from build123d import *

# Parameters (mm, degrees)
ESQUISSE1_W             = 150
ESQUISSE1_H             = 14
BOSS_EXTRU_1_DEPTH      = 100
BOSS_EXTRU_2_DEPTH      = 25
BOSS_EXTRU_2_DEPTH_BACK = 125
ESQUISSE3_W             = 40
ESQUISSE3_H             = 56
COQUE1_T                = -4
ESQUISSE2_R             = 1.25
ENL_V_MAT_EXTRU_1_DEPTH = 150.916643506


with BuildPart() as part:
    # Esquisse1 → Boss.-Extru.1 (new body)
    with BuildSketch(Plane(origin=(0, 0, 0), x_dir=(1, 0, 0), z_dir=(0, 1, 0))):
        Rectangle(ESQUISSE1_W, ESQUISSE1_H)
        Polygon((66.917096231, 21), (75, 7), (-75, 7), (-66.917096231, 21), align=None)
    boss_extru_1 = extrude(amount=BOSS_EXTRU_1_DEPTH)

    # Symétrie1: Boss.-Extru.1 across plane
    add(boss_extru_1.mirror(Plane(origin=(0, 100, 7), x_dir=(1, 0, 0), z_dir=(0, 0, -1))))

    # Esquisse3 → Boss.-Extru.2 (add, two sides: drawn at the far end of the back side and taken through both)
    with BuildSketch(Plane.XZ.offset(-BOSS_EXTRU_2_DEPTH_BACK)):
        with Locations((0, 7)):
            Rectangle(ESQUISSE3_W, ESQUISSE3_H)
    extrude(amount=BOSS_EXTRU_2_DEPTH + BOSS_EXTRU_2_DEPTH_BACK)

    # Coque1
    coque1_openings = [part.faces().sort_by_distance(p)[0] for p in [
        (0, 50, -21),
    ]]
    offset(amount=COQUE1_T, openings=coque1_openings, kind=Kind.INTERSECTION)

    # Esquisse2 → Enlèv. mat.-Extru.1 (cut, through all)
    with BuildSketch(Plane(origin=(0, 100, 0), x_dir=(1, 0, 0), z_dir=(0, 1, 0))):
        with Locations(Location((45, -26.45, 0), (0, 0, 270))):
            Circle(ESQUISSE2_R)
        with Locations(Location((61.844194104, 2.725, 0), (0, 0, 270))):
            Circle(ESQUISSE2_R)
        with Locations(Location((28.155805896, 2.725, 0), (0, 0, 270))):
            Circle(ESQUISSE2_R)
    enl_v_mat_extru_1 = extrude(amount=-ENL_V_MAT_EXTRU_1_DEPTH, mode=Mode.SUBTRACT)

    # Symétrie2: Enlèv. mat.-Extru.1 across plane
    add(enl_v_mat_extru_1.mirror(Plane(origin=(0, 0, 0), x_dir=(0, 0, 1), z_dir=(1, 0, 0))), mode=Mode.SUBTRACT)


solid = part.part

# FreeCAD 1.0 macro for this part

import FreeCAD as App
import Part
import Sketcher

V = App.Vector
Q = App.Units.Quantity


def faces_at(feature, points):
    """Names of the faces that lie closest to the given points."""
    faces = feature.Shape.Faces
    near = lambda p: min(range(len(faces)), key=lambda i: faces[i].distToShape(Part.Vertex(*p))[0])
    return sorted({f"Face{near(p) + 1}" for p in points})

doc = App.newDocument("Part")
body = doc.addObject("PartDesign::Body", "Body")

sketch1 = body.newObject("Sketcher::SketchObject", "Sketch")
sketch1.AttachmentSupport = (doc.getObject("XZ_Plane"), [""])
sketch1.MapMode = "FlatFace"
sketch1.addGeometry(Part.LineSegment(V(-75, -7, 0), V(-75, 7, 0)), False)
sketch1.addGeometry(Part.LineSegment(V(-75, 7, 0), V(75, 7, 0)), False)
sketch1.addGeometry(Part.LineSegment(V(75, 7, 0), V(75, -7, 0)), False)
sketch1.addGeometry(Part.LineSegment(V(75, -7, 0), V(67, -21, 0)), False)
sketch1.addGeometry(Part.LineSegment(V(67, -21, 0), V(-67, -21, 0)), False)
sketch1.addGeometry(Part.LineSegment(V(-67, -21, 0), V(-75, -7, 0)), False)
sketch1.addConstraint(Sketcher.Constraint("Coincident", 0, 2, 1, 1))
sketch1.addConstraint(Sketcher.Constraint("Coincident", 1, 2, 2, 1))
sketch1.addConstraint(Sketcher.Constraint("Coincident", 2, 2, 3, 1))
sketch1.addConstraint(Sketcher.Constraint("Coincident", 3, 2, 4, 1))
sketch1.addConstraint(Sketcher.Constraint("Coincident", 4, 2, 5, 1))
sketch1.addConstraint(Sketcher.Constraint("Coincident", 5, 2, 0, 1))
sketch1.addConstraint(Sketcher.Constraint("Vertical", 0))
sketch1.addConstraint(Sketcher.Constraint("Horizontal", 1))
sketch1.addConstraint(Sketcher.Constraint("Vertical", 2))
sketch1.addConstraint(Sketcher.Constraint("Horizontal", 4))
sketch1.addConstraint(Sketcher.Constraint("Symmetric", 0, 2, 2, 2, -1, 1))
sketch1.addConstraint(Sketcher.Constraint("Horizontal", 2, 2, 5, 2))
sketch1.addConstraint(Sketcher.Constraint("Equal", 3, 5))
sketch1.addConstraint(Sketcher.Constraint("DistanceX", 1, 1, 1, 2, Q("150 mm")))
sketch1.addConstraint(Sketcher.Constraint("DistanceY", 0, 1, 0, 2, Q("14 mm")))
sketch1.addConstraint(Sketcher.Constraint("Angle", 3, Q("-120 deg")))
sketch1.addConstraint(Sketcher.Constraint("DistanceY", 3, 2, -1, 1, Q("21 mm")))
pad1 = body.newObject("PartDesign::Pad", "Pad")
pad1.Profile = sketch1
pad1.Length = 100
pad1.Reversed = True
doc.recompute()

datumplane = body.newObject("PartDesign::Plane", "DatumPlane")
datumplane.AttachmentSupport = (doc.getObject("XY_Plane"), [""])
datumplane.MapMode = "FlatFace"
datumplane.AttachmentOffset = App.Placement(V(0, 0, 7), App.Rotation())
mirrored = body.newObject("PartDesign::Mirrored", "Mirrored")
mirrored.Originals = [pad1]
mirrored.MirrorPlane = (datumplane, [""])
body.Tip = mirrored

sketch2 = body.newObject("Sketcher::SketchObject", "Sketch001")
sketch2.AttachmentSupport = (doc.getObject("XZ_Plane"), [""])
sketch2.MapMode = "FlatFace"
sketch2.addGeometry(Part.LineSegment(V(-20, 35, 0), V(-20, -21, 0)), False)
sketch2.addGeometry(Part.LineSegment(V(-20, -21, 0), V(20, -21, 0)), False)
sketch2.addGeometry(Part.LineSegment(V(20, -21, 0), V(20, 35, 0)), False)
sketch2.addGeometry(Part.LineSegment(V(20, 35, 0), V(-20, 35, 0)), False)
sketch2.addConstraint(Sketcher.Constraint("Coincident", 0, 2, 1, 1))
sketch2.addConstraint(Sketcher.Constraint("Coincident", 1, 2, 2, 1))
sketch2.addConstraint(Sketcher.Constraint("Coincident", 2, 2, 3, 1))
sketch2.addConstraint(Sketcher.Constraint("Coincident", 3, 2, 0, 1))
sketch2.addConstraint(Sketcher.Constraint("Vertical", 0))
sketch2.addConstraint(Sketcher.Constraint("Horizontal", 1))
sketch2.addConstraint(Sketcher.Constraint("Vertical", 2))
sketch2.addConstraint(Sketcher.Constraint("Horizontal", 3))
sketch2.addConstraint(Sketcher.Constraint("DistanceX", 1, 1, 1, 2, Q("40 mm")))
sketch2.addConstraint(Sketcher.Constraint("DistanceY", 0, 2, 0, 1, Q("56 mm")))
sketch2.addConstraint(Sketcher.Constraint("DistanceX", 0, 2, -1, 1, Q("20 mm")))
sketch2.addConstraint(Sketcher.Constraint("DistanceY", 0, 2, -1, 1, Q("21 mm")))
pad2 = body.newObject("PartDesign::Pad", "Pad001")
pad2.Profile = sketch2
pad2.Type = "TwoLengths"
pad2.Length = 25
pad2.Length2 = 125
doc.recompute()

thickness = body.newObject("PartDesign::Thickness", "Thickness")
thickness.Base = (pad2, faces_at(pad2, [(0, 50, -21)]))
thickness.Value = 4
thickness.Reversed = True
thickness.Join = "Intersection"

sketch3 = body.newObject("Sketcher::SketchObject", "Sketch002")
sketch3.AttachmentSupport = (doc.getObject("XZ_Plane"), [""])
sketch3.MapMode = "FlatFace"
sketch3.AttachmentOffset = App.Placement(V(0, 0, -100), App.Rotation())
sketch3.addGeometry(Part.Circle(V(45, 26.4, 0), V(0, 0, 1), 1.2), False)
sketch3.addGeometry(Part.Circle(V(61.8, -2.7, 0), V(0, 0, 1), 1.2), False)
sketch3.addGeometry(Part.Circle(V(28.2, -2.7, 0), V(0, 0, 1), 1.2), False)
sketch3.addConstraint(Sketcher.Constraint("Equal", 0, 1))
sketch3.addConstraint(Sketcher.Constraint("Equal", 1, 2))
sketch3.addConstraint(Sketcher.Constraint("Horizontal", 1, 3, 2, 3))
sketch3.addConstraint(Sketcher.Constraint("Diameter", 0, Q("2.5 mm")))
sketch3.addConstraint(Sketcher.Constraint("DistanceX", -1, 1, 0, 3, Q("45 mm")))
sketch3.addConstraint(Sketcher.Constraint("DistanceY", -1, 1, 0, 3, Q("26.45 mm")))
sketch3.addConstraint(Sketcher.Constraint("DistanceY", 1, 3, -1, 1, Q("2.725 mm")))
sketch3.addConstraint(Sketcher.Constraint("DistanceX", 2, 3, 1, 3, Q("33.688388 mm")))
sketch3.addConstraint(Sketcher.Constraint("DistanceX", -1, 1, 1, 3, Q("61.844194 mm")))
pocket1 = body.newObject("PartDesign::Pocket", "Pocket")
pocket1.Profile = sketch3
pocket1.Type = "ThroughAll"
pocket1.Reversed = True
doc.recompute()

mirrored2 = body.newObject("PartDesign::Mirrored", "Mirrored001")
mirrored2.Originals = [pocket1]
mirrored2.MirrorPlane = (doc.getObject("YZ_Plane"), [""])
body.Tip = mirrored2

doc.recompute()
